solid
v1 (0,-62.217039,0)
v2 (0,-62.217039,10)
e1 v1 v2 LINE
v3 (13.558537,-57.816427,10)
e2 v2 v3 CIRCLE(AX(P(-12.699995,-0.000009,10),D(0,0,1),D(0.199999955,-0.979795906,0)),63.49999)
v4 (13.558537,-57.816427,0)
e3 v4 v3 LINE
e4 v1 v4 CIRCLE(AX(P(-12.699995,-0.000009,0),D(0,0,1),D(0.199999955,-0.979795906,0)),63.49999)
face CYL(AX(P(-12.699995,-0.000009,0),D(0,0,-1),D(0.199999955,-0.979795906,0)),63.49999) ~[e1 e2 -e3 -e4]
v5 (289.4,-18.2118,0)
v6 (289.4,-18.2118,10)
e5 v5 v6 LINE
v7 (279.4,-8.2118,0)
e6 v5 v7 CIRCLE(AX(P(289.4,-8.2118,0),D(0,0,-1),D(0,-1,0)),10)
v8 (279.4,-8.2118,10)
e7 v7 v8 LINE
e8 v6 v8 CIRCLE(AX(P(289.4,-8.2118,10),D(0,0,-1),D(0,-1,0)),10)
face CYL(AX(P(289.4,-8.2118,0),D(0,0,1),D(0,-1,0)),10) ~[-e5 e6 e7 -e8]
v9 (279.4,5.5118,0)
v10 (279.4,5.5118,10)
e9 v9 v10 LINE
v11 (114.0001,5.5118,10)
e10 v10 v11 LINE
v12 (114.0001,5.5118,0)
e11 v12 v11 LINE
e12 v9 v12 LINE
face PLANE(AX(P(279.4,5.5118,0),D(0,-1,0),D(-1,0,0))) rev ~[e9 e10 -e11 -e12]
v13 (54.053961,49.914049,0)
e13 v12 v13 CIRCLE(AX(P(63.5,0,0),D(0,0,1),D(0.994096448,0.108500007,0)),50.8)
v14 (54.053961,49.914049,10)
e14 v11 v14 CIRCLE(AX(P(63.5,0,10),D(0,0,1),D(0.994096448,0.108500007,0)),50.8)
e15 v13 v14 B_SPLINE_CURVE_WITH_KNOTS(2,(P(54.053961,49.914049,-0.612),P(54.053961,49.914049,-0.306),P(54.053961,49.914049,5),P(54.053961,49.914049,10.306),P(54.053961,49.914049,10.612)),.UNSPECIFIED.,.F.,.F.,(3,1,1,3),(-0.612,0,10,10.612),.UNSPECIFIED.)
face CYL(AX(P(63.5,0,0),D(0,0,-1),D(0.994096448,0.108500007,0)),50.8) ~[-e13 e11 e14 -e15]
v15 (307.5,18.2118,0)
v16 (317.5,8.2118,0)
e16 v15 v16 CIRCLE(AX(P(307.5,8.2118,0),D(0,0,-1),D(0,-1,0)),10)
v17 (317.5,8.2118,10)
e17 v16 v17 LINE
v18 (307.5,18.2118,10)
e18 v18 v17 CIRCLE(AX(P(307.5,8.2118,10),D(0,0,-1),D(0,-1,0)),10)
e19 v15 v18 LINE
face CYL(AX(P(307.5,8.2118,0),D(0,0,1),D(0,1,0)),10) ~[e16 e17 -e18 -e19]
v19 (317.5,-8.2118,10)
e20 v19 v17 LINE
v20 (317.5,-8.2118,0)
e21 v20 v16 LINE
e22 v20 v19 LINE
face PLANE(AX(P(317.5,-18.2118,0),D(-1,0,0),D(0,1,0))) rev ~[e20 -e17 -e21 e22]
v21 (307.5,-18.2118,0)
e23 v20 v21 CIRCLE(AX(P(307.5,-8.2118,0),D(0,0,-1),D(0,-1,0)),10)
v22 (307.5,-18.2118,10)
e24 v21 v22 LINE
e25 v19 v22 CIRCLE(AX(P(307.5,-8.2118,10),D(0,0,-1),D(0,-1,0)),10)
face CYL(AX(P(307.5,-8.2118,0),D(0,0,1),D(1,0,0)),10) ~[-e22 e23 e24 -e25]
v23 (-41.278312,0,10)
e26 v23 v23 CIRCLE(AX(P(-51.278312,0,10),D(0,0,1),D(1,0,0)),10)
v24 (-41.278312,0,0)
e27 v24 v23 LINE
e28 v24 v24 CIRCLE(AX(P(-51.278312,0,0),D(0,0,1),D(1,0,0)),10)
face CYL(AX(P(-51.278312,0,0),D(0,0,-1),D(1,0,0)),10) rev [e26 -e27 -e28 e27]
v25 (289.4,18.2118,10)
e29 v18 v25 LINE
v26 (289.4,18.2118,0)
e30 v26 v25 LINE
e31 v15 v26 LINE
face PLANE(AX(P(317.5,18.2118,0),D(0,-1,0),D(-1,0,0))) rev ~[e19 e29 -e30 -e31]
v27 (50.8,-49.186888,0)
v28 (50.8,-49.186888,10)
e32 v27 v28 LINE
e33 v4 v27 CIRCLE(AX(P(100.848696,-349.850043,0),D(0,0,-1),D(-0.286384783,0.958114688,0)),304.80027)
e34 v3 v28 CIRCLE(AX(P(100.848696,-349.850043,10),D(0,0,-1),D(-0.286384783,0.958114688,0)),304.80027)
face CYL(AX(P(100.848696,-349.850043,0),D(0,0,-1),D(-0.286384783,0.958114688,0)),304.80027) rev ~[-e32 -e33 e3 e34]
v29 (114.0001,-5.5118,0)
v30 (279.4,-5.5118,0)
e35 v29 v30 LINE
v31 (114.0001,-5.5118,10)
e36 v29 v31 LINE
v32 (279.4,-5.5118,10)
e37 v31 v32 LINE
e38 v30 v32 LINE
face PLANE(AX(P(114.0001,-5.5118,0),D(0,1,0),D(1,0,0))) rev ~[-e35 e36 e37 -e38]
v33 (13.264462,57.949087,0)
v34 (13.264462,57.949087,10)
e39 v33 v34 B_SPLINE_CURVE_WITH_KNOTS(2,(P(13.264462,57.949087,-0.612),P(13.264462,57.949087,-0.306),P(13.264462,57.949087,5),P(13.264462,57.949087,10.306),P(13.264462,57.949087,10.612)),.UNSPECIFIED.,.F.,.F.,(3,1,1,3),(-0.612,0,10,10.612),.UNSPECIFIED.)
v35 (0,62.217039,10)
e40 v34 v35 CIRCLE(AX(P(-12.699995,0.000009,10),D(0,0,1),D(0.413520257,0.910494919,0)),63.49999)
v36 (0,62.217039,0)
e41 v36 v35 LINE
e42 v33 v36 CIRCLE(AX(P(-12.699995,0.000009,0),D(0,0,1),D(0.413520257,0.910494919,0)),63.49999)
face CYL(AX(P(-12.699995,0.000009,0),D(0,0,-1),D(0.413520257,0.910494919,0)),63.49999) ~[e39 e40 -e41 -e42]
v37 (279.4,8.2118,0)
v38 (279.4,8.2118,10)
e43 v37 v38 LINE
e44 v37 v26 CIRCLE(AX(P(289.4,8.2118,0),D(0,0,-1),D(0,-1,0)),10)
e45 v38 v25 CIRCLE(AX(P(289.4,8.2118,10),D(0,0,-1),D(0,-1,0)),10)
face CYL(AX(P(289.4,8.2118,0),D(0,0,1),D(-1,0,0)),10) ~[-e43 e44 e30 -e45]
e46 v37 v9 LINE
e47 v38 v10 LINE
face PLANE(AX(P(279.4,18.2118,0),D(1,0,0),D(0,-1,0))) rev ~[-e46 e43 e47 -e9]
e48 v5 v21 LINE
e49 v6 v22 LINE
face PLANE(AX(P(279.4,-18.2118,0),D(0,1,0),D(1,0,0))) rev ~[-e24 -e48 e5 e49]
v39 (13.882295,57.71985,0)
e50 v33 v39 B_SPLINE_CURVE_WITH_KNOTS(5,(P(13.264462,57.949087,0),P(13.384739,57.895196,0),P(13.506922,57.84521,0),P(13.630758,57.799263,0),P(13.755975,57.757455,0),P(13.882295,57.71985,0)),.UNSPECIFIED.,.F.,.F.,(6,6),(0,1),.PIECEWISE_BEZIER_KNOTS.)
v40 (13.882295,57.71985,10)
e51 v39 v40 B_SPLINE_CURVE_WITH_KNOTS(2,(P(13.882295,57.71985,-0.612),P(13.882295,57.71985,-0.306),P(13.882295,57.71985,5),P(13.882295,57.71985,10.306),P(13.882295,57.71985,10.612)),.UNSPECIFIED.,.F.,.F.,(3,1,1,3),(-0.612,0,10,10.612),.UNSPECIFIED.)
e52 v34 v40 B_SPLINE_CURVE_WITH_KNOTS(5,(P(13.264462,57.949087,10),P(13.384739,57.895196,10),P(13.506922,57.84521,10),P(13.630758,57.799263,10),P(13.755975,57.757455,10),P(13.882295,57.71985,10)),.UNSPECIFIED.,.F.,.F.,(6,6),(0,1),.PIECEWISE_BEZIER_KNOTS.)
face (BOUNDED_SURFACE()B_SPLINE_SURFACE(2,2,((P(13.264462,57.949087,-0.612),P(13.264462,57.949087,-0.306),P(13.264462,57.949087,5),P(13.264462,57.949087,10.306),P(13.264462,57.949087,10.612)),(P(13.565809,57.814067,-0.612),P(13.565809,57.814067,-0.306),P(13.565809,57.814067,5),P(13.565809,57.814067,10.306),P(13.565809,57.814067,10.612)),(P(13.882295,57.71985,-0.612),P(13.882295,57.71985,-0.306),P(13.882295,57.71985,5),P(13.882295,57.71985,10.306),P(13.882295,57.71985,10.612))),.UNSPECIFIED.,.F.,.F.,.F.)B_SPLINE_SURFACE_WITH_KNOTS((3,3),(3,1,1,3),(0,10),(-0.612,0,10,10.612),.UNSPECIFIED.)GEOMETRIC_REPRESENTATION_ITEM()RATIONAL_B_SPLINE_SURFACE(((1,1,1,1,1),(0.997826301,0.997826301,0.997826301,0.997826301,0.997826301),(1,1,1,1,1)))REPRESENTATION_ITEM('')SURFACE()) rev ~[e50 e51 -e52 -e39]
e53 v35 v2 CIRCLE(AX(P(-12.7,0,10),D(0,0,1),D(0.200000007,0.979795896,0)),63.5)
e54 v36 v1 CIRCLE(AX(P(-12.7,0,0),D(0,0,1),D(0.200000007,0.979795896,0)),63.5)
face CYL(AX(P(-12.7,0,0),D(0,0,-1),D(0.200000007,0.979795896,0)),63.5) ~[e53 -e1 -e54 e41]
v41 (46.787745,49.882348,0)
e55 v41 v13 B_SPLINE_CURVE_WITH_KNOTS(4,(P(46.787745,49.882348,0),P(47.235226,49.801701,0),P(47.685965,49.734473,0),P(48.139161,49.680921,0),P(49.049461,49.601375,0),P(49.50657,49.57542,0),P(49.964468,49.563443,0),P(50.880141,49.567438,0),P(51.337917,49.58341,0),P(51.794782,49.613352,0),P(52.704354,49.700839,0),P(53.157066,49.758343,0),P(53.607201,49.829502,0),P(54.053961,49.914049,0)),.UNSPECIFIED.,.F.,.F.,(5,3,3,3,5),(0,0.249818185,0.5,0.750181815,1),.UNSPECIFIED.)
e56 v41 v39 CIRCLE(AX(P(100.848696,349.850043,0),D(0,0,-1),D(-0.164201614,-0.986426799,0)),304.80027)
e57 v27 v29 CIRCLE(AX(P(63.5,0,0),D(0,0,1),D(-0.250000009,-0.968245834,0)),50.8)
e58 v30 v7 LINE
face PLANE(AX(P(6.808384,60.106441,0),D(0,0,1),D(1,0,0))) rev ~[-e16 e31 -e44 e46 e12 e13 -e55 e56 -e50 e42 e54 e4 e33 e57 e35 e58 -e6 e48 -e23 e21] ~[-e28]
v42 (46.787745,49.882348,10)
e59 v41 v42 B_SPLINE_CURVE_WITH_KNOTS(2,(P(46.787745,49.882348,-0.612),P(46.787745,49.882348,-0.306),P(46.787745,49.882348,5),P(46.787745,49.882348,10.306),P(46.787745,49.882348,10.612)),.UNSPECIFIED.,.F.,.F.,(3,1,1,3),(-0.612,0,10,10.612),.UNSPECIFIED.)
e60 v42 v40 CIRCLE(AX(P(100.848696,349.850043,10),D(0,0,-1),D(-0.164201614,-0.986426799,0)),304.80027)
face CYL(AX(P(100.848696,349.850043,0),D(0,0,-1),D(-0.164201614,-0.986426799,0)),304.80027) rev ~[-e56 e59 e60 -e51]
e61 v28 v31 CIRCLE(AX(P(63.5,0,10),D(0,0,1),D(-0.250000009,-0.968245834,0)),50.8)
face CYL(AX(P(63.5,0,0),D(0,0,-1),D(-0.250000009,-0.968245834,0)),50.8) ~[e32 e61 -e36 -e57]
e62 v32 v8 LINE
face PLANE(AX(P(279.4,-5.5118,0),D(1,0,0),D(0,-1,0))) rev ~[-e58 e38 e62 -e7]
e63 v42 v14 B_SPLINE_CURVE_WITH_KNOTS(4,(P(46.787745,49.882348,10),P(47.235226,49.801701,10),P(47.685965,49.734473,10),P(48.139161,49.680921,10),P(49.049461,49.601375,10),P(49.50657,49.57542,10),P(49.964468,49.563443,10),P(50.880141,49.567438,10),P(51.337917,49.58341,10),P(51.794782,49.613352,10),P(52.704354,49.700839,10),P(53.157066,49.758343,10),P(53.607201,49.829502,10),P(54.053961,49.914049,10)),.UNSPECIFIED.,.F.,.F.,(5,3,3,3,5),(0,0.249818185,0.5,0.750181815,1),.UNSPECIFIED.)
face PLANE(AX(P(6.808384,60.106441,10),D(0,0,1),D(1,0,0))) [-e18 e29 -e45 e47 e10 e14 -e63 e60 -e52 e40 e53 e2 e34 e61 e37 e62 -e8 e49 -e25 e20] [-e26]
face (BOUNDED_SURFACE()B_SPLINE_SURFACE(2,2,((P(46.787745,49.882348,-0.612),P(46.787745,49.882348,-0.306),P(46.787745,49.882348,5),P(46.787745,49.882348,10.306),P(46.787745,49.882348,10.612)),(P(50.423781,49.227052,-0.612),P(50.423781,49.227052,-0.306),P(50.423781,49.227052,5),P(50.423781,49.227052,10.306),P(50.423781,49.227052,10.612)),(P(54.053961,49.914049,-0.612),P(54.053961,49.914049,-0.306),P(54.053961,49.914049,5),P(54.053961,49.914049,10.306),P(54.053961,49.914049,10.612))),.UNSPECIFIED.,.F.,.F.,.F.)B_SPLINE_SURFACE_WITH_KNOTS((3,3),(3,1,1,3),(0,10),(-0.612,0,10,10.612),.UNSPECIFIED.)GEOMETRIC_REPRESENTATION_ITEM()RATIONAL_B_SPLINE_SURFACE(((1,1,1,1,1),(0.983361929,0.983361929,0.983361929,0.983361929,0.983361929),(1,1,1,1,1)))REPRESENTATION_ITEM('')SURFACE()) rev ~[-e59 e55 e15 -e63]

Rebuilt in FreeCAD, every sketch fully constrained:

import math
import FreeCAD as App
import Part
import Sketcher

V = App.Vector
Q = App.Units.Quantity


def edges_at(feature, points):
    """Names of the edges that pass closest to the given points."""
    edges = feature.Shape.Edges
    near = lambda p: min(range(len(edges)), key=lambda i: edges[i].distToShape(Part.Vertex(*p))[0])
    return sorted({f"Edge{near(p) + 1}" for p in points})

doc = App.newDocument("Part")
body = doc.addObject("PartDesign::Body", "Body")

# Sketch on XY plane
sketch1 = doc.addObject("Sketcher::SketchObject", "Sketch")
body.addObject(sketch1)
sketch1.AttachmentSupport = (doc.XY_Plane, [""])
sketch1.MapMode = "FlatFace"
sketch1.addGeometry([
    Part.ArcOfCircle(Part.Circle(V(-13, 0, 0), V(0, 0, 1), 63), math.radians(65.57), math.radians(78.46)),  # 0
    Part.ArcOfCircle(Part.Circle(V(-13, 0, 0), V(0, 0, 1), 63), math.radians(78), math.radians(282)),  # 1
    Part.ArcOfCircle(Part.Circle(V(-13, 0, 0), V(0, 0, 1), 63), math.radians(-78.46), math.radians(-65.57)),  # 2
    Part.ArcOfCircle(Part.Circle(V(101, -350, 0), V(0, 0, 1), 305), math.radians(99.45), math.radians(106.64)),  # 3
    Part.ArcOfCircle(Part.Circle(V(64, 0, 0), V(0, 0, 1), 51), math.radians(-104), math.radians(-6)),  # 4
    Part.LineSegment(V(114, -6, 0), V(279, -6, 0)),  # 5
    Part.LineSegment(V(279, -6, 0), V(279, -18, 0)),  # 6
    Part.LineSegment(V(279, -18, 0), V(318, -18, 0)),  # 7
    Part.LineSegment(V(318, -18, 0), V(318, 18, 0)),  # 8
    Part.LineSegment(V(318, 18, 0), V(279, 18, 0)),  # 9
    Part.LineSegment(V(279, 18, 0), V(279, 6, 0)),  # 10
    Part.LineSegment(V(279, 6, 0), V(114, 6, 0)),  # 11
    Part.ArcOfCircle(Part.Circle(V(64, 0, 0), V(0, 0, 1), 51), math.radians(6), math.radians(104)),  # 12
    Part.ArcOfCircle(Part.Circle(V(101, 350, 0), V(0, 0, 1), 305), math.radians(-106.64), math.radians(-99.45)),  # 13
    Part.Circle(V(-51, 0, 0), V(0, 0, 1), 10),  # 14
], False)
sketch1.addConstraint([
    Sketcher.Constraint("Tangent", 0, 2, 1, 1),
    Sketcher.Constraint("Tangent", 1, 2, 2, 1),
    Sketcher.Constraint("Coincident", 2, 2, 3, 2),
    Sketcher.Constraint("Coincident", 3, 1, 4, 1),
    Sketcher.Constraint("Coincident", 4, 2, 5, 1),
    Sketcher.Constraint("Coincident", 5, 2, 6, 1),
    Sketcher.Constraint("Coincident", 6, 2, 7, 1),
    Sketcher.Constraint("Coincident", 7, 2, 8, 1),
    Sketcher.Constraint("Coincident", 8, 2, 9, 1),
    Sketcher.Constraint("Coincident", 9, 2, 10, 1),
    Sketcher.Constraint("Coincident", 10, 2, 11, 1),
    Sketcher.Constraint("Coincident", 11, 2, 12, 1),
    Sketcher.Constraint("Coincident", 12, 2, 13, 2),
    Sketcher.Constraint("Coincident", 13, 1, 0, 1),
    Sketcher.Constraint("Horizontal", 5),
    Sketcher.Constraint("Vertical", 6),
    Sketcher.Constraint("Horizontal", 7),
    Sketcher.Constraint("Vertical", 8),
    Sketcher.Constraint("Horizontal", 9),
    Sketcher.Constraint("Vertical", 10),
    Sketcher.Constraint("Horizontal", 11),
    Sketcher.Constraint("Coincident", 12, 3, 4, 3),
    Sketcher.Constraint("Equal", 0, 2),
    Sketcher.Constraint("Equal", 4, 12),
    Sketcher.Constraint("Equal", 3, 13),
    Sketcher.Constraint("Symmetric", 0, 2, 1, 2, -1, 1),
    Sketcher.Constraint("Symmetric", 3, 3, 13, 3, -1),
    Sketcher.Constraint("Symmetric", 6, 2, 9, 2, -1),
    Sketcher.Constraint("Symmetric", 4, 2, 11, 2, -1),
    Sketcher.Constraint("PointOnObject", 1, 3, -1),
    Sketcher.Constraint("PointOnObject", 14, 3, -1),
    Sketcher.Constraint("Radius", 4, Q("2 in")),
    Sketcher.Constraint("Radius", 1, Q("2.5 in")),
    Sketcher.Constraint("DistanceX", 7, 1, 7, 2, Q("1.5 in")),
    Sketcher.Constraint("DistanceY", 6, 2, 6, 1, Q("0.5 in")),
    Sketcher.Constraint("DistanceX", -1, 1, 3, 1, Q("2 in")),
    Sketcher.Constraint("DistanceX", -1, 1, 5, 2, Q("11 in")),
    Sketcher.Constraint("DistanceX", 0, 3, 4, 3, Q("2.9999998 in")),
    Sketcher.Constraint("DistanceX", 1, 3, 4, 3, Q("3 in")),
    Sketcher.Constraint("DistanceX", 12, 3, 7, 2, Q("10 in")),
    Sketcher.Constraint("Diameter", 14, Q("20 mm")),
    Sketcher.Constraint("DistanceY", 8, 1, 8, 2, Q("1.434 in")),
    Sketcher.Constraint("Radius", 3, Q("304.80027 mm")),
    Sketcher.Constraint("DistanceX", 2, 3, 3, 3, Q("113.548691 mm")),
    Sketcher.Constraint("DistanceX", 14, 3, 1, 3, Q("38.578312 mm")),
])
pad1 = doc.addObject("PartDesign::Pad", "Pad")
body.addObject(pad1)
pad1.Profile = sketch1
pad1.Length = 10
doc.recompute()

fillet = doc.addObject("PartDesign::Fillet", "Fillet")
body.addObject(fillet)
fillet.Base = (pad1, edges_at(pad1, [(13.559, 57.816, 5)]))
fillet.Radius = 5
doc.recompute()

fillet2 = doc.addObject("PartDesign::Fillet", "Fillet001")
body.addObject(fillet2)
fillet2.Base = (fillet, edges_at(fillet, [(50.8, 49.187, 5)]))
fillet2.Radius = 20
doc.recompute()

fillet3 = doc.addObject("PartDesign::Fillet", "Fillet002")
body.addObject(fillet3)
fillet3.Base = (fillet2, edges_at(fillet2, [(317.5, 18.212, 5), (279.4, 18.212, 5)]))
fillet3.Radius = 10
doc.recompute()

fillet4 = doc.addObject("PartDesign::Fillet", "Fillet003")
body.addObject(fillet4)
fillet4.Base = (fillet3, edges_at(fillet3, [(317.5, -18.212, 5), (279.4, -18.212, 5)]))
fillet4.Radius = 10

doc.recompute()
